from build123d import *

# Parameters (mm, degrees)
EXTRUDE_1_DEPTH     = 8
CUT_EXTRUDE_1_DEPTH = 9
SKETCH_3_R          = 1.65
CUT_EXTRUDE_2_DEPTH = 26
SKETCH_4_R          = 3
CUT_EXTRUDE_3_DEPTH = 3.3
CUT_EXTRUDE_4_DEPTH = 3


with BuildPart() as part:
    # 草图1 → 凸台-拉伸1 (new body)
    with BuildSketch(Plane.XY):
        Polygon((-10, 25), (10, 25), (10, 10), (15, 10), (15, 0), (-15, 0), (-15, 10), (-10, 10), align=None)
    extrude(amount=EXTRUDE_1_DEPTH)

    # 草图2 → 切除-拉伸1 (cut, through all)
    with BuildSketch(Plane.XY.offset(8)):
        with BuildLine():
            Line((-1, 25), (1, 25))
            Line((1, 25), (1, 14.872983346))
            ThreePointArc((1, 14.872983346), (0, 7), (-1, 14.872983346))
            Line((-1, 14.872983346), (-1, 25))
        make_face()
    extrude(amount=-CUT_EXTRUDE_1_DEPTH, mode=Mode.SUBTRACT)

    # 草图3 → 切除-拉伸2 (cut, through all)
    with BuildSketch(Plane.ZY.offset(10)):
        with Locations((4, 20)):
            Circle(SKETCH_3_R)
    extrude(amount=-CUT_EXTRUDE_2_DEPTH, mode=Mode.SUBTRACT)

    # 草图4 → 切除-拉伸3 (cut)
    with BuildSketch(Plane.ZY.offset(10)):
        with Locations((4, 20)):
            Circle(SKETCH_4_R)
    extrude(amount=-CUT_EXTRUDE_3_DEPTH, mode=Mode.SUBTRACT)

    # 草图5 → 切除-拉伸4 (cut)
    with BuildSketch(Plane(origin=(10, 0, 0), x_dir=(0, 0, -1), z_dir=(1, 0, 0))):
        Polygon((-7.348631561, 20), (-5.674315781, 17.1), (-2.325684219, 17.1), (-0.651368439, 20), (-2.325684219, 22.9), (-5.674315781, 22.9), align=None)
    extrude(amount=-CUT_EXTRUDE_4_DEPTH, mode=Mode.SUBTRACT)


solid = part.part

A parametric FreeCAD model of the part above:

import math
import FreeCAD as App
import Part
import Sketcher
Q = App.Units.Quantity

doc = App.newDocument("Part")
body = doc.addObject("PartDesign::Body", "Body")

sketch1 = doc.addObject("Sketcher::SketchObject", "Sketch")
body.addObject(sketch1)
sketch1.AttachmentSupport = (doc.XY_Plane, [""])
sketch1.MapMode = "FlatFace"
sketch1.addGeometry([
    Part.LineSegment(App.Vector(10, 25, 0), App.Vector(-10, 25, 0)),
    Part.LineSegment(App.Vector(-10, 25, 0), App.Vector(-10, 10, 0)),
    Part.LineSegment(App.Vector(-10, 10, 0), App.Vector(-15, 10, 0)),
    Part.LineSegment(App.Vector(-15, 10, 0), App.Vector(-15, 0, 0)),
    Part.LineSegment(App.Vector(-15, 0, 0), App.Vector(15, 0, 0)),
    Part.LineSegment(App.Vector(15, 0, 0), App.Vector(15, 10, 0)),
    Part.LineSegment(App.Vector(15, 10, 0), App.Vector(10, 10, 0)),
    Part.LineSegment(App.Vector(10, 10, 0), App.Vector(10, 25, 0)),
], False)
sketch1.addConstraint([
    Sketcher.Constraint("Coincident", 0, 2, 1, 1),
    Sketcher.Constraint("Coincident", 1, 2, 2, 1),
    Sketcher.Constraint("Coincident", 2, 2, 3, 1),
    Sketcher.Constraint("Coincident", 3, 2, 4, 1),
    Sketcher.Constraint("Coincident", 4, 2, 5, 1),
    Sketcher.Constraint("Coincident", 5, 2, 6, 1),
    Sketcher.Constraint("Coincident", 6, 2, 7, 1),
    Sketcher.Constraint("Coincident", 7, 2, 0, 1),
    Sketcher.Constraint("Horizontal", 0),
    Sketcher.Constraint("Vertical", 1),
    Sketcher.Constraint("Horizontal", 2),
    Sketcher.Constraint("Vertical", 3),
    Sketcher.Constraint("Horizontal", 4),
    Sketcher.Constraint("Vertical", 5),
    Sketcher.Constraint("Horizontal", 6),
    Sketcher.Constraint("Vertical", 7),
    Sketcher.Constraint("Symmetric", 3, 2, 4, 2, -1, 1),
    Sketcher.Constraint("Symmetric", 1, 2, 6, 2, -2),
    Sketcher.Constraint("DistanceX", 0, 2, 0, 1, 20.0),
    Sketcher.Constraint("DistanceX", 2, 2, 2, 1, 5.0),
    Sketcher.Constraint("DistanceY", 1, 2, 1, 1, 15.0),
    Sketcher.Constraint("DistanceY", 3, 2, 3, 1, 10.0),
])
pad1 = doc.addObject("PartDesign::Pad", "Pad")
body.addObject(pad1)
pad1.Profile = sketch1
pad1.Length = 8

sketch2 = doc.addObject("Sketcher::SketchObject", "Sketch001")
body.addObject(sketch2)
sketch2.AttachmentSupport = (doc.XY_Plane, [""])
sketch2.MapMode = "FlatFace"
sketch2.AttachmentOffset = App.Placement(App.Vector(0, 0, 8), App.Rotation())
sketch2.addGeometry([
    Part.LineSegment(App.Vector(1, 25, 0), App.Vector(-1, 25, 0)),
    Part.LineSegment(App.Vector(-1, 25, 0), App.Vector(-1, 14.872983, 0)),
    Part.ArcOfCircle(Part.Circle(App.Vector(0, 11, 0), App.Vector(0, 0, 1), 4), math.radians(104.477512), math.radians(435.522488)),
    Part.LineSegment(App.Vector(1, 14.872983, 0), App.Vector(1, 25, 0)),
], False)
sketch2.addConstraint([
    Sketcher.Constraint("Coincident", 0, 2, 1, 1),
    Sketcher.Constraint("Coincident", 1, 2, 2, 1),
    Sketcher.Constraint("Coincident", 2, 2, 3, 1),
    Sketcher.Constraint("Coincident", 3, 2, 0, 1),
    Sketcher.Constraint("Horizontal", 0),
    Sketcher.Constraint("Vertical", 1),
    Sketcher.Constraint("Vertical", 3),
    Sketcher.Constraint("Symmetric", 1, 2, 2, 2, -2),
    Sketcher.Constraint("Radius", 2, 4.0),
    Sketcher.Constraint("DistanceX", 0, 2, 0, 1, 2.0),
    Sketcher.Constraint("DistanceY", -1, 1, 2, 3, 11.0),
    Sketcher.Constraint("DistanceY", -1, 1, 0, 2, 25.0),
])
pocket1 = doc.addObject("PartDesign::Pocket", "Pocket")
body.addObject(pocket1)
pocket1.Profile = sketch2
pocket1.Type = "ThroughAll"

sketch3 = doc.addObject("Sketcher::SketchObject", "Sketch002")
body.addObject(sketch3)
sketch3.AttachmentSupport = (doc.YZ_Plane, [""])
sketch3.MapMode = "FlatFace"
sketch3.AttachmentOffset = App.Placement(App.Vector(0, 0, -10), App.Rotation())
sketch3.addGeometry(Part.Circle(App.Vector(20, 4, 0), App.Vector(0, 0, 1), 1.65), False)
sketch3.addConstraint([
    Sketcher.Constraint("Diameter", 0, 3.3),
    Sketcher.Constraint("DistanceX", -1, 1, 0, 3, 20.0),
    Sketcher.Constraint("DistanceY", -1, 1, 0, 3, 4.0),
])
pocket2 = doc.addObject("PartDesign::Pocket", "Pocket001")
body.addObject(pocket2)
pocket2.Profile = sketch3
pocket2.Type = "ThroughAll"
pocket2.Reversed = True

sketch4 = doc.addObject("Sketcher::SketchObject", "Sketch003")
body.addObject(sketch4)
sketch4.AttachmentSupport = (doc.YZ_Plane, [""])
sketch4.MapMode = "FlatFace"
sketch4.AttachmentOffset = App.Placement(App.Vector(0, 0, -10), App.Rotation())
sketch4.addGeometry(Part.Circle(App.Vector(20, 4, 0), App.Vector(0, 0, 1), 3), False)
sketch4.addConstraint([
    Sketcher.Constraint("Diameter", 0, 6.0),
    Sketcher.Constraint("DistanceX", -1, 1, 0, 3, 20.0),
    Sketcher.Constraint("DistanceY", -1, 1, 0, 3, 4.0),
])
pocket3 = doc.addObject("PartDesign::Pocket", "Pocket002")
body.addObject(pocket3)
pocket3.Profile = sketch4
pocket3.Length = 3.3
pocket3.Reversed = True

sketch5 = doc.addObject("Sketcher::SketchObject", "Sketch004")
body.addObject(sketch5)
sketch5.AttachmentSupport = (doc.YZ_Plane, [""])
sketch5.MapMode = "FlatFace"
sketch5.AttachmentOffset = App.Placement(App.Vector(0, 0, 10), App.Rotation())
sketch5.addGeometry([
    Part.LineSegment(App.Vector(20, 7.348632, 0), App.Vector(17.1, 5.674316, 0)),
    Part.LineSegment(App.Vector(17.1, 5.674316, 0), App.Vector(17.1, 2.325684, 0)),
    Part.LineSegment(App.Vector(17.1, 2.325684, 0), App.Vector(20, 0.651368, 0)),
    Part.LineSegment(App.Vector(20, 0.651368, 0), App.Vector(22.9, 2.325684, 0)),
    Part.LineSegment(App.Vector(22.9, 2.325684, 0), App.Vector(22.9, 5.674316, 0)),
    Part.LineSegment(App.Vector(22.9, 5.674316, 0), App.Vector(20, 7.348632, 0)),
], False)
sketch5.addConstraint([
    Sketcher.Constraint("Coincident", 0, 2, 1, 1),
    Sketcher.Constraint("Coincident", 1, 2, 2, 1),
    Sketcher.Constraint("Coincident", 2, 2, 3, 1),
    Sketcher.Constraint("Coincident", 3, 2, 4, 1),
    Sketcher.Constraint("Coincident", 4, 2, 5, 1),
    Sketcher.Constraint("Coincident", 5, 2, 0, 1),
    Sketcher.Constraint("Vertical", 1),
    Sketcher.Constraint("Vertical", 4),
    Sketcher.Constraint("Parallel", 0, 3),
    Sketcher.Constraint("Parallel", 2, 5),
    Sketcher.Constraint("Horizontal", 1, 2, 3, 2),
    Sketcher.Constraint("Horizontal", 0, 2, 4, 2),
    Sketcher.Constraint("Vertical", 2, 2, 5, 2),
    Sketcher.Constraint("Angle", 0, Q("-150 deg")),
    Sketcher.Constraint("DistanceX", -1, 1, 2, 2, 20.0),
    Sketcher.Constraint("DistanceX", -1, 1, 0, 2, 17.1),
    Sketcher.Constraint("DistanceY", 1, 2, 1, 1, 3.348632),
    Sketcher.Constraint("DistanceY", -1, 1, 2, 2, 0.651368),
])
pocket4 = doc.addObject("PartDesign::Pocket", "Pocket003")
body.addObject(pocket4)
pocket4.Profile = sketch5
pocket4.Length = 3

doc.recompute()
